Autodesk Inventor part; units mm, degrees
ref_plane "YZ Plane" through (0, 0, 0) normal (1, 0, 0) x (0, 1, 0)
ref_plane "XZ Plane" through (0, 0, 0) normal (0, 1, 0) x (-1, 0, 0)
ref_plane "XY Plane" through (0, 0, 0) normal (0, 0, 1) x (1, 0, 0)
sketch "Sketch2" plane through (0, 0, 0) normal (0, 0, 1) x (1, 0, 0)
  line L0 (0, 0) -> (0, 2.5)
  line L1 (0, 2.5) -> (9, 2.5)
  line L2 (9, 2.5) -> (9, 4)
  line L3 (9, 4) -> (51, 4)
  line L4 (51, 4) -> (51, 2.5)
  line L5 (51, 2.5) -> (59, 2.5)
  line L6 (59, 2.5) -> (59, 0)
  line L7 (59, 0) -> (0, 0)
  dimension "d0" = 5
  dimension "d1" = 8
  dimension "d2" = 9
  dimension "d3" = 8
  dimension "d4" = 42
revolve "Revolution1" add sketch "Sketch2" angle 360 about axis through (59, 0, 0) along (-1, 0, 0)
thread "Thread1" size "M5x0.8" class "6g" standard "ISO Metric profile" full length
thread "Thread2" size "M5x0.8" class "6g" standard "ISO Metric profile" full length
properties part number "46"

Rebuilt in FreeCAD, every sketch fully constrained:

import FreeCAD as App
import Part
import Sketcher
from FreeCAD import Vector


def add_polygon(sketch, points):
    """Adds a closed chain of lines whose ends are joined by coincident constraints."""
    first, n = sketch.GeometryCount, len(points)
    for a, b in zip(points, points[1:] + points[:1]):
        sketch.addGeometry(Part.LineSegment(App.Vector(*a, 0), App.Vector(*b, 0)), False)
    for i in range(n):
        sketch.addConstraint(Sketcher.Constraint("Coincident", first + i, 2, first + (i + 1) % n, 1))

doc = App.newDocument("Part")
body = doc.addObject("PartDesign::Body", "Body")

# Sketch on XY plane
sketch1 = doc.addObject("Sketcher::SketchObject", "Sketch")
body.addObject(sketch1)
sketch1.AttachmentSupport = (doc.XY_Plane, [""])
sketch1.MapMode = "FlatFace"
add_polygon(sketch1, [(0, 2.5), (0, 0), (59, 0), (59, 2.5), (51, 2.5), (51, 4), (9, 4), (9, 2.5)])  # lines 0-7
sketch1.addConstraint(Sketcher.Constraint("Vertical", 0))
sketch1.addConstraint(Sketcher.Constraint("Horizontal", 1))
sketch1.addConstraint(Sketcher.Constraint("Vertical", 2))
sketch1.addConstraint(Sketcher.Constraint("Horizontal", 3))
sketch1.addConstraint(Sketcher.Constraint("Vertical", 4))
sketch1.addConstraint(Sketcher.Constraint("Horizontal", 5))
sketch1.addConstraint(Sketcher.Constraint("Vertical", 6))
sketch1.addConstraint(Sketcher.Constraint("Horizontal", 7))
sketch1.addConstraint(Sketcher.Constraint("Coincident", 0, 2, -1, 1))
sketch1.addConstraint(Sketcher.Constraint("Horizontal", 3, 2, 6, 2))
sketch1.addConstraint(Sketcher.Constraint("DistanceX", 3, 2, 3, 1, 8.0))
sketch1.addConstraint(Sketcher.Constraint("DistanceX", 5, 2, 5, 1, 42.0))
sketch1.addConstraint(Sketcher.Constraint("DistanceX", 7, 2, 7, 1, 9.0))
sketch1.addConstraint(Sketcher.Constraint("DistanceY", 0, 2, 0, 1, 2.5))
sketch1.addConstraint(Sketcher.Constraint("DistanceY", 4, 1, 4, 2, 1.5))
revolution = doc.addObject("PartDesign::Revolution", "Revolution")
body.addObject(revolution)
revolution.Profile = sketch1
revolution.ReferenceAxis = (sketch1, ["H_Axis"])
revolution.Angle = 360

doc.recompute()
